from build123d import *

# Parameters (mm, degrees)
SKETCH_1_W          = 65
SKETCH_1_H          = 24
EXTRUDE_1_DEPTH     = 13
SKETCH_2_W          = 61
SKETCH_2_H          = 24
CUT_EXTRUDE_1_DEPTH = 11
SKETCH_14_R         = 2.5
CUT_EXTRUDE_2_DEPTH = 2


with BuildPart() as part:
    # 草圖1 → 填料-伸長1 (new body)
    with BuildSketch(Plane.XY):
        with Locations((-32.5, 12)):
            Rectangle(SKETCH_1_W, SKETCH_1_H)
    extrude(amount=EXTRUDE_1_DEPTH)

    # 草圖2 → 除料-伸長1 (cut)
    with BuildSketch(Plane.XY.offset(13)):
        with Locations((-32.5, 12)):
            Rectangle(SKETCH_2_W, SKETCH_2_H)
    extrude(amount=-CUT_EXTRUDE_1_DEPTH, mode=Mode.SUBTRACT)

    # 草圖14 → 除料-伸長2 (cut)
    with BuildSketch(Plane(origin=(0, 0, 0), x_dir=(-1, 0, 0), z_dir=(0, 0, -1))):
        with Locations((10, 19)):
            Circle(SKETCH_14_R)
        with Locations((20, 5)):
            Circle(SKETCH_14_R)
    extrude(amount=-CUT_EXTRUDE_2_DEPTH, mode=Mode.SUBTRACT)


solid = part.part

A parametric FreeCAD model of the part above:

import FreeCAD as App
import Part
import Sketcher

doc = App.newDocument("Part")
body = doc.addObject("PartDesign::Body", "Body")

# Sketch on XY plane
sketch1 = body.newObject("Sketcher::SketchObject", "Sketch")
sketch1.AttachmentSupport = (doc.getObject("XY_Plane"), [""])
sketch1.MapMode = "FlatFace"
sketch1.addGeometry([
    Part.LineSegment(App.Vector(-65, 24, 0), App.Vector(-65, 0, 0)),
    Part.LineSegment(App.Vector(-65, 0, 0), App.Vector(0, 0, 0)),
    Part.LineSegment(App.Vector(0, 0, 0), App.Vector(0, 24, 0)),
    Part.LineSegment(App.Vector(0, 24, 0), App.Vector(-65, 24, 0)),
], False)
sketch1.addConstraint([
    Sketcher.Constraint("Coincident", 0, 2, 1, 1),
    Sketcher.Constraint("Coincident", 1, 2, 2, 1),
    Sketcher.Constraint("Coincident", 2, 2, 3, 1),
    Sketcher.Constraint("Coincident", 3, 2, 0, 1),
    Sketcher.Constraint("Vertical", 0),
    Sketcher.Constraint("Horizontal", 1),
    Sketcher.Constraint("Vertical", 2),
    Sketcher.Constraint("Horizontal", 3),
    Sketcher.Constraint("Coincident", 1, 2, -1, 1),
    Sketcher.Constraint("DistanceX", 1, 1, 1, 2, 65.0),
    Sketcher.Constraint("DistanceY", 0, 2, 0, 1, 24.0),
])
pad1 = body.newObject("PartDesign::Pad", "Pad")
pad1.Profile = sketch1
pad1.Length = 13

# Sketch on XY plane
sketch2 = body.newObject("Sketcher::SketchObject", "Sketch001")
sketch2.AttachmentSupport = (doc.getObject("XY_Plane"), [""])
sketch2.MapMode = "FlatFace"
sketch2.AttachmentOffset = App.Placement(App.Vector(0, 0, 13), App.Rotation())
sketch2.addGeometry([
    Part.LineSegment(App.Vector(-63, 24, 0), App.Vector(-63, 0, 0)),
    Part.LineSegment(App.Vector(-63, 0, 0), App.Vector(-2, 0, 0)),
    Part.LineSegment(App.Vector(-2, 0, 0), App.Vector(-2, 24, 0)),
    Part.LineSegment(App.Vector(-2, 24, 0), App.Vector(-63, 24, 0)),
], False)
sketch2.addConstraint([
    Sketcher.Constraint("Coincident", 0, 2, 1, 1),
    Sketcher.Constraint("Coincident", 1, 2, 2, 1),
    Sketcher.Constraint("Coincident", 2, 2, 3, 1),
    Sketcher.Constraint("Coincident", 3, 2, 0, 1),
    Sketcher.Constraint("Vertical", 0),
    Sketcher.Constraint("Horizontal", 1),
    Sketcher.Constraint("Vertical", 2),
    Sketcher.Constraint("Horizontal", 3),
    Sketcher.Constraint("PointOnObject", 0, 2, -1),
    Sketcher.Constraint("DistanceX", 1, 1, 1, 2, 61.0),
    Sketcher.Constraint("DistanceY", 0, 2, 0, 1, 24.0),
    Sketcher.Constraint("DistanceX", 0, 2, -1, 1, 63.0),
])
pocket1 = body.newObject("PartDesign::Pocket", "Pocket")
pocket1.Profile = sketch2
pocket1.Length = 11

# Sketch on XY plane
sketch3 = body.newObject("Sketcher::SketchObject", "Sketch002")
sketch3.AttachmentSupport = (doc.getObject("XY_Plane"), [""])
sketch3.MapMode = "FlatFace"
sketch3.addGeometry([
    Part.Circle(App.Vector(-10, 19, 0), App.Vector(0, 0, 1), 2.5),
    Part.Circle(App.Vector(-20, 5, 0), App.Vector(0, 0, 1), 2.5),
], False)
sketch3.addConstraint([
    Sketcher.Constraint("Equal", 0, 1),
    Sketcher.Constraint("Diameter", 0, 5.0),
    Sketcher.Constraint("DistanceX", 0, 3, -1, 1, 10.0),
    Sketcher.Constraint("DistanceY", -1, 1, 0, 3, 19.0),
    Sketcher.Constraint("DistanceX", 1, 3, -1, 1, 20.0),
    Sketcher.Constraint("DistanceY", -1, 1, 1, 3, 5.0),
])
pocket2 = body.newObject("PartDesign::Pocket", "Pocket001")
pocket2.Profile = sketch3
pocket2.Length = 2
pocket2.Reversed = True

doc.recompute()
